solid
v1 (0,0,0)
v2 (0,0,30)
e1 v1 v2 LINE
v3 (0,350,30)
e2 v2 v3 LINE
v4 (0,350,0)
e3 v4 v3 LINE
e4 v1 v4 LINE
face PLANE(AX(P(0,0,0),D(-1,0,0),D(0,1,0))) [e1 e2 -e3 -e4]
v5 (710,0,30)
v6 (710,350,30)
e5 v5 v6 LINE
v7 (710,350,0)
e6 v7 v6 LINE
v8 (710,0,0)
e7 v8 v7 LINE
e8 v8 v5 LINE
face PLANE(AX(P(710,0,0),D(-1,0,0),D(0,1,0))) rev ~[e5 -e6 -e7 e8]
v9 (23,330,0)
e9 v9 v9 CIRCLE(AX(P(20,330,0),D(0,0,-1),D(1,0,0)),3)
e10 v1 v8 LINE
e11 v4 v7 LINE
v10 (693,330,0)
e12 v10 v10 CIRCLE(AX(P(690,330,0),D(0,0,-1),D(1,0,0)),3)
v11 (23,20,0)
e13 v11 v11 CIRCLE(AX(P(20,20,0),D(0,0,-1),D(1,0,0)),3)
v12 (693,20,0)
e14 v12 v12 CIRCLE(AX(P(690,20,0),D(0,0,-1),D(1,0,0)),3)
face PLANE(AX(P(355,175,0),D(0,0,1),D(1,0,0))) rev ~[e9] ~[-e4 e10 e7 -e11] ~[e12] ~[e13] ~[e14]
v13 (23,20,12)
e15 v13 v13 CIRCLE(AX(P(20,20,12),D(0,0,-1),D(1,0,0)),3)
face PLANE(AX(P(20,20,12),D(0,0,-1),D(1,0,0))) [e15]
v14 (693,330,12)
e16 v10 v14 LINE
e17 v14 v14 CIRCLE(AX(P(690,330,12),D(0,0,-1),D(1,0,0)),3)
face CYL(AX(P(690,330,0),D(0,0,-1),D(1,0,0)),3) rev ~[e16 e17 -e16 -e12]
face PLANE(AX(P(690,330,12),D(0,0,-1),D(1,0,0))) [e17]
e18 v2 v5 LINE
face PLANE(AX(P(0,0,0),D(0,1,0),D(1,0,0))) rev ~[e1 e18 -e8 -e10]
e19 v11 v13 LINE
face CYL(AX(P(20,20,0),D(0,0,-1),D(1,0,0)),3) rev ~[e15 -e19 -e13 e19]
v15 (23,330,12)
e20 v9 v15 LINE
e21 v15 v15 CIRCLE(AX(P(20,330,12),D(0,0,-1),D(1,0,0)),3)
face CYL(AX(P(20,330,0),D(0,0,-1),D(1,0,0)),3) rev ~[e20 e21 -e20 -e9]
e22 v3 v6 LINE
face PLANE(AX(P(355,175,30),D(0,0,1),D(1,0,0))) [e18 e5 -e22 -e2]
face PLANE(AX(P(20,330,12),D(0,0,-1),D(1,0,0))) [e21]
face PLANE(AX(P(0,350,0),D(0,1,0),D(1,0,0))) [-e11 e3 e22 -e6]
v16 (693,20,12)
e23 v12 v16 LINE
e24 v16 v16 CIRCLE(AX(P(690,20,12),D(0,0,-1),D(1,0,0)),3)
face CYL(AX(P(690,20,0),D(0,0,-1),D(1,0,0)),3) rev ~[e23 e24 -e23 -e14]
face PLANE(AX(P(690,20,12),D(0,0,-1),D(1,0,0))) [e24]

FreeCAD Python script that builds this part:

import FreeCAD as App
import Part
import Sketcher


def add_polygon(sketch, points):
    """Adds a closed chain of lines whose ends are joined by coincident constraints."""
    first, n = sketch.GeometryCount, len(points)
    for a, b in zip(points, points[1:] + points[:1]):
        sketch.addGeometry(Part.LineSegment(App.Vector(*a, 0), App.Vector(*b, 0)), False)
    for i in range(n):
        sketch.addConstraint(Sketcher.Constraint("Coincident", first + i, 2, first + (i + 1) % n, 1))

doc = App.newDocument("Part")
body = doc.addObject("PartDesign::Body", "Body")

# Sketch on XY plane
sketch1 = doc.addObject("Sketcher::SketchObject", "Sketch")
body.addObject(sketch1)
sketch1.AttachmentSupport = (doc.XY_Plane, [""])
sketch1.MapMode = "FlatFace"
add_polygon(sketch1, [(0, 350), (0, 0), (710, 0), (710, 350)])  # lines 0-3
sketch1.addConstraint([
    Sketcher.Constraint("Vertical", 0),
    Sketcher.Constraint("Horizontal", 1),
    Sketcher.Constraint("Vertical", 2),
    Sketcher.Constraint("Horizontal", 3),
    Sketcher.Constraint("Coincident", 0, 2, -1, 1),
    Sketcher.Constraint("DistanceX", 1, 1, 1, 2, 710.0),
    Sketcher.Constraint("DistanceY", 0, 2, 0, 1, 350.0),
])
pad1 = doc.addObject("PartDesign::Pad", "Pad")
body.addObject(pad1)
pad1.Profile = sketch1
pad1.Length = 30

# Sketch on XY plane
sketch2 = doc.addObject("Sketcher::SketchObject", "Sketch001")
body.addObject(sketch2)
sketch2.AttachmentSupport = (doc.XY_Plane, [""])
sketch2.MapMode = "FlatFace"
sketch2.addGeometry([
    Part.Circle(App.Vector(20, 20, 0), App.Vector(0, 0, 1), 3),
    Part.Circle(App.Vector(690, 20, 0), App.Vector(0, 0, 1), 3),
    Part.Circle(App.Vector(690, 330, 0), App.Vector(0, 0, 1), 3),
    Part.Circle(App.Vector(20, 330, 0), App.Vector(0, 0, 1), 3),
], False)
sketch2.addConstraint([
    Sketcher.Constraint("Equal", 0, 1),
    Sketcher.Constraint("Equal", 1, 2),
    Sketcher.Constraint("Equal", 2, 3),
    Sketcher.Constraint("Horizontal", 0, 3, 1, 3),
    Sketcher.Constraint("Horizontal", 2, 3, 3, 3),
    Sketcher.Constraint("Vertical", 1, 3, 2, 3),
    Sketcher.Constraint("Vertical", 0, 3, 3, 3),
    Sketcher.Constraint("Diameter", 0, 6.0),
    Sketcher.Constraint("DistanceX", -1, 1, 0, 3, 20.0),
    Sketcher.Constraint("DistanceY", -1, 1, 0, 3, 20.0),
    Sketcher.Constraint("DistanceX", -1, 1, 1, 3, 690.0),
    Sketcher.Constraint("DistanceY", -1, 1, 2, 3, 330.0),
])
pocket1 = doc.addObject("PartDesign::Pocket", "Pocket")
body.addObject(pocket1)
pocket1.Profile = sketch2
pocket1.Length = 12
pocket1.Reversed = True

# Sketch on XY plane
sketch3 = doc.addObject("Sketcher::SketchObject", "Sketch002")
body.addObject(sketch3)
sketch3.AttachmentSupport = (doc.XY_Plane, [""])
sketch3.MapMode = "FlatFace"
sketch3.addGeometry(Part.Circle(App.Vector(20, 330, 0), App.Vector(0, 0, 1), 3), False)
sketch3.addConstraint([
    Sketcher.Constraint("Diameter", 0, 6.0),
    Sketcher.Constraint("DistanceX", -1, 1, 0, 3, 20.0),
    Sketcher.Constraint("DistanceY", -1, 1, 0, 3, 330.0),
])
pocket2 = doc.addObject("PartDesign::Pocket", "Pocket001")
body.addObject(pocket2)
pocket2.Profile = sketch3
pocket2.Length = 12
pocket2.Reversed = True

doc.recompute()
